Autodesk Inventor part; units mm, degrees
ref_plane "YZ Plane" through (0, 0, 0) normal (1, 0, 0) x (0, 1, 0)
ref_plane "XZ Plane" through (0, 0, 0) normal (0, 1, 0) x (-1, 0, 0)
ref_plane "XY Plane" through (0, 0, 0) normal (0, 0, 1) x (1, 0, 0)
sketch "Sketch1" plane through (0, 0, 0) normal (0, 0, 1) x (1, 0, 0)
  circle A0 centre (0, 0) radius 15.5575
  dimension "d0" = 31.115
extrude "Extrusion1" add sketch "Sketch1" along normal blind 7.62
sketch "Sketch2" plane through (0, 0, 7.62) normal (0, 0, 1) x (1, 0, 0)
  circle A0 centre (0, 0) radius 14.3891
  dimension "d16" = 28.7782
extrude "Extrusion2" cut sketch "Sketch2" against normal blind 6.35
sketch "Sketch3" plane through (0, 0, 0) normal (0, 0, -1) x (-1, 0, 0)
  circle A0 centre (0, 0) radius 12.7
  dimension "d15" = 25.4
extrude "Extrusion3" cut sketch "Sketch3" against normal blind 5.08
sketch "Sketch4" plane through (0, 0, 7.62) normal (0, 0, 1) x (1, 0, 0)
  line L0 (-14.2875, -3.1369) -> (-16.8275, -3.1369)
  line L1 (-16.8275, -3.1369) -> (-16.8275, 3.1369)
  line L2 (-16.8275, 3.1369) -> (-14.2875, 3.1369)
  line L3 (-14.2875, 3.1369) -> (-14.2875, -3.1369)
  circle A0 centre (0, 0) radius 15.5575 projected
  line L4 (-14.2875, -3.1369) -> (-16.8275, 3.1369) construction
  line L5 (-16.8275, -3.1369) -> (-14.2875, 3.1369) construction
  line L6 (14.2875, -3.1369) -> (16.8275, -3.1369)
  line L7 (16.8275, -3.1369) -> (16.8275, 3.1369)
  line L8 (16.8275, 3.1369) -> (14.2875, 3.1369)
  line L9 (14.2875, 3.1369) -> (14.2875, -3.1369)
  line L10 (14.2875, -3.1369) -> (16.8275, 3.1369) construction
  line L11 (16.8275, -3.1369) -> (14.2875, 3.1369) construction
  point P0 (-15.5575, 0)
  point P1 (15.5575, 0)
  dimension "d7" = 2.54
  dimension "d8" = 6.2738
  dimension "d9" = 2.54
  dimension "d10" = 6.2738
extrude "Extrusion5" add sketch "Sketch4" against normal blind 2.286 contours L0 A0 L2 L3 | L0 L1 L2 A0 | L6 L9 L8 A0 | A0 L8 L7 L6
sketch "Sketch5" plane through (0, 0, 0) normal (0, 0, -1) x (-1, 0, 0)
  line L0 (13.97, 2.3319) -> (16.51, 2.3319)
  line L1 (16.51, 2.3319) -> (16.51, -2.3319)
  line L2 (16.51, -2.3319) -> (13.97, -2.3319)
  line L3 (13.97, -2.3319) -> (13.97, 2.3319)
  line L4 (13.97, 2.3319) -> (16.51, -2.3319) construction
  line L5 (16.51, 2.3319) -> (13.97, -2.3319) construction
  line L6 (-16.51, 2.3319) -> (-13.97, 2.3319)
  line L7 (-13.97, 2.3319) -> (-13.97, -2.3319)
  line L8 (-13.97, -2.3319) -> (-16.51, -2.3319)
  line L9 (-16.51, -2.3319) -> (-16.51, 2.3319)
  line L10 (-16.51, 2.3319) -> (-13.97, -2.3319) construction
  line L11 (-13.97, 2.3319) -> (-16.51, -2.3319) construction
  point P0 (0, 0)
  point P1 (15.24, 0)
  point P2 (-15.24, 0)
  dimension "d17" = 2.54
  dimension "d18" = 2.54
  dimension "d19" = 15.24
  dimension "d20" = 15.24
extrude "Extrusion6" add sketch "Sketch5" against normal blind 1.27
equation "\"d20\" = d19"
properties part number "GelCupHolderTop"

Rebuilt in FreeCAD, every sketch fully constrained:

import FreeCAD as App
import Part
import Sketcher
Q = App.Units.Quantity

doc = App.newDocument("Part")
body = doc.addObject("PartDesign::Body", "Body")

# Sketch on XY plane
sketch1 = body.newObject("Sketcher::SketchObject", "Sketch")
sketch1.AttachmentSupport = (doc.getObject("XY_Plane"), [""])
sketch1.MapMode = "FlatFace"
sketch1.addGeometry(Part.Circle(App.Vector(0, 0, 0), App.Vector(0, 0, 1), 16), False)
sketch1.addConstraint([
    Sketcher.Constraint("Coincident", 0, 3, -1, 1),
    Sketcher.Constraint("Diameter", 0, Q("1.225 in")),
])
pad1 = body.newObject("PartDesign::Pad", "Pad")
pad1.Profile = sketch1
pad1.Length = Q("0.3 in")

# Sketch on XY plane
sketch2 = body.newObject("Sketcher::SketchObject", "Sketch001")
sketch2.AttachmentSupport = (doc.getObject("XY_Plane"), [""])
sketch2.MapMode = "FlatFace"
sketch2.AttachmentOffset = App.Placement(App.Vector(0, 0, 0.3 * 25.4), App.Rotation())
sketch2.addGeometry(Part.Circle(App.Vector(0, 0, 0), App.Vector(0, 0, 1), 14), False)
sketch2.addConstraint([
    Sketcher.Constraint("Coincident", 0, 3, -1, 1),
    Sketcher.Constraint("Diameter", 0, Q("1.133 in")),
])
pocket1 = body.newObject("PartDesign::Pocket", "Pocket")
pocket1.Profile = sketch2
pocket1.Length = Q("0.25 in")

# Sketch on XY plane
sketch3 = body.newObject("Sketcher::SketchObject", "Sketch002")
sketch3.AttachmentSupport = (doc.getObject("XY_Plane"), [""])
sketch3.MapMode = "FlatFace"
sketch3.addGeometry(Part.Circle(App.Vector(0, 0, 0), App.Vector(0, 0, 1), 13), False)
sketch3.addConstraint([
    Sketcher.Constraint("Coincident", 0, 3, -1, 1),
    Sketcher.Constraint("Diameter", 0, Q("1 in")),
])
pocket2 = body.newObject("PartDesign::Pocket", "Pocket001")
pocket2.Profile = sketch3
pocket2.Length = Q("0.2 in")
pocket2.Reversed = True

# Sketch on XY plane
sketch4 = body.newObject("Sketcher::SketchObject", "Sketch003")
sketch4.AttachmentSupport = (doc.getObject("XY_Plane"), [""])
sketch4.MapMode = "FlatFace"
sketch4.AttachmentOffset = App.Placement(App.Vector(0, 0, 0.3 * 25.4), App.Rotation())
sketch4.addGeometry([
    Part.LineSegment(App.Vector(-14.3, -3.1, 0), App.Vector(-14.3, 3.1, 0)),  # 0
    Part.LineSegment(App.Vector(-14.3, 3.1, 0), App.Vector(-16.8, 3.1, 0)),  # 1
    Part.LineSegment(App.Vector(-16.8, 3.1, 0), App.Vector(-16.8, -3.1, 0)),  # 2
    Part.LineSegment(App.Vector(-16.8, -3.1, 0), App.Vector(-14.3, -3.1, 0)),  # 3
    Part.LineSegment(App.Vector(14.3, -3.1, 0), App.Vector(16.8, -3.1, 0)),  # 4
    Part.LineSegment(App.Vector(16.8, -3.1, 0), App.Vector(16.8, 3.1, 0)),  # 5
    Part.LineSegment(App.Vector(16.8, 3.1, 0), App.Vector(14.3, 3.1, 0)),  # 6
    Part.LineSegment(App.Vector(14.3, 3.1, 0), App.Vector(14.3, -3.1, 0)),  # 7
], False)
sketch4.addConstraint([
    Sketcher.Constraint("Coincident", 0, 2, 1, 1),
    Sketcher.Constraint("Coincident", 1, 2, 2, 1),
    Sketcher.Constraint("Coincident", 2, 2, 3, 1),
    Sketcher.Constraint("Coincident", 3, 2, 0, 1),
    Sketcher.Constraint("Coincident", 4, 2, 5, 1),
    Sketcher.Constraint("Coincident", 5, 2, 6, 1),
    Sketcher.Constraint("Coincident", 6, 2, 7, 1),
    Sketcher.Constraint("Coincident", 7, 2, 4, 1),
    Sketcher.Constraint("Vertical", 0),
    Sketcher.Constraint("Horizontal", 1),
    Sketcher.Constraint("Vertical", 2),
    Sketcher.Constraint("Horizontal", 3),
    Sketcher.Constraint("Horizontal", 4),
    Sketcher.Constraint("Vertical", 5),
    Sketcher.Constraint("Horizontal", 6),
    Sketcher.Constraint("Vertical", 7),
    Sketcher.Constraint("Symmetric", 1, 2, 4, 2, -1, 1),
    Sketcher.Constraint("Symmetric", 3, 2, 6, 2, -1, 1),
    Sketcher.Constraint("Horizontal", 3, 2, 4, 2),
    Sketcher.Constraint("DistanceX", 1, 2, 1, 1, Q("0.1 in")),
    Sketcher.Constraint("DistanceY", 0, 1, 0, 2, Q("0.247 in")),
    Sketcher.Constraint("DistanceX", 0, 2, -1, 1, Q("0.5625 in")),
])
pad2 = body.newObject("PartDesign::Pad", "Pad001")
pad2.Profile = sketch4
pad2.Length = Q("0.09 in")
pad2.Reversed = True

# Sketch on XY plane
sketch5 = body.newObject("Sketcher::SketchObject", "Sketch004")
sketch5.AttachmentSupport = (doc.getObject("XY_Plane"), [""])
sketch5.MapMode = "FlatFace"
sketch5.addGeometry([
    Part.LineSegment(App.Vector(-16.5, 2.3, 0), App.Vector(-14, 2.3, 0)),  # 0
    Part.LineSegment(App.Vector(-14, 2.3, 0), App.Vector(-14, -2.3, 0)),  # 1
    Part.LineSegment(App.Vector(-14, -2.3, 0), App.Vector(-16.5, -2.3, 0)),  # 2
    Part.LineSegment(App.Vector(-16.5, -2.3, 0), App.Vector(-16.5, 2.3, 0)),  # 3
    Part.LineSegment(App.Vector(14, 2.3, 0), App.Vector(16.5, 2.3, 0)),  # 4
    Part.LineSegment(App.Vector(16.5, 2.3, 0), App.Vector(16.5, -2.3, 0)),  # 5
    Part.LineSegment(App.Vector(16.5, -2.3, 0), App.Vector(14, -2.3, 0)),  # 6
    Part.LineSegment(App.Vector(14, -2.3, 0), App.Vector(14, 2.3, 0)),  # 7
], False)
sketch5.addConstraint([
    Sketcher.Constraint("Coincident", 0, 2, 1, 1),
    Sketcher.Constraint("Coincident", 1, 2, 2, 1),
    Sketcher.Constraint("Coincident", 2, 2, 3, 1),
    Sketcher.Constraint("Coincident", 3, 2, 0, 1),
    Sketcher.Constraint("Coincident", 4, 2, 5, 1),
    Sketcher.Constraint("Coincident", 5, 2, 6, 1),
    Sketcher.Constraint("Coincident", 6, 2, 7, 1),
    Sketcher.Constraint("Coincident", 7, 2, 4, 1),
    Sketcher.Constraint("Horizontal", 0),
    Sketcher.Constraint("Vertical", 1),
    Sketcher.Constraint("Horizontal", 2),
    Sketcher.Constraint("Vertical", 3),
    Sketcher.Constraint("Horizontal", 4),
    Sketcher.Constraint("Vertical", 5),
    Sketcher.Constraint("Horizontal", 6),
    Sketcher.Constraint("Vertical", 7),
    Sketcher.Constraint("Symmetric", 2, 2, 4, 2, -1, 1),
    Sketcher.Constraint("Symmetric", 0, 2, 6, 2, -1, 1),
    Sketcher.Constraint("Horizontal", 3, 2, 4, 2),
    Sketcher.Constraint("DistanceX", 0, 1, 0, 2, Q("0.1 in")),
    Sketcher.Constraint("DistanceX", 0, 2, 4, 2, Q("1.2 in")),
    Sketcher.Constraint("DistanceY", 1, 2, 1, 1, Q("4.6638 mm")),
])
pad3 = body.newObject("PartDesign::Pad", "Pad002")
pad3.Profile = sketch5
pad3.Length = Q("0.05 in")

doc.recompute()
